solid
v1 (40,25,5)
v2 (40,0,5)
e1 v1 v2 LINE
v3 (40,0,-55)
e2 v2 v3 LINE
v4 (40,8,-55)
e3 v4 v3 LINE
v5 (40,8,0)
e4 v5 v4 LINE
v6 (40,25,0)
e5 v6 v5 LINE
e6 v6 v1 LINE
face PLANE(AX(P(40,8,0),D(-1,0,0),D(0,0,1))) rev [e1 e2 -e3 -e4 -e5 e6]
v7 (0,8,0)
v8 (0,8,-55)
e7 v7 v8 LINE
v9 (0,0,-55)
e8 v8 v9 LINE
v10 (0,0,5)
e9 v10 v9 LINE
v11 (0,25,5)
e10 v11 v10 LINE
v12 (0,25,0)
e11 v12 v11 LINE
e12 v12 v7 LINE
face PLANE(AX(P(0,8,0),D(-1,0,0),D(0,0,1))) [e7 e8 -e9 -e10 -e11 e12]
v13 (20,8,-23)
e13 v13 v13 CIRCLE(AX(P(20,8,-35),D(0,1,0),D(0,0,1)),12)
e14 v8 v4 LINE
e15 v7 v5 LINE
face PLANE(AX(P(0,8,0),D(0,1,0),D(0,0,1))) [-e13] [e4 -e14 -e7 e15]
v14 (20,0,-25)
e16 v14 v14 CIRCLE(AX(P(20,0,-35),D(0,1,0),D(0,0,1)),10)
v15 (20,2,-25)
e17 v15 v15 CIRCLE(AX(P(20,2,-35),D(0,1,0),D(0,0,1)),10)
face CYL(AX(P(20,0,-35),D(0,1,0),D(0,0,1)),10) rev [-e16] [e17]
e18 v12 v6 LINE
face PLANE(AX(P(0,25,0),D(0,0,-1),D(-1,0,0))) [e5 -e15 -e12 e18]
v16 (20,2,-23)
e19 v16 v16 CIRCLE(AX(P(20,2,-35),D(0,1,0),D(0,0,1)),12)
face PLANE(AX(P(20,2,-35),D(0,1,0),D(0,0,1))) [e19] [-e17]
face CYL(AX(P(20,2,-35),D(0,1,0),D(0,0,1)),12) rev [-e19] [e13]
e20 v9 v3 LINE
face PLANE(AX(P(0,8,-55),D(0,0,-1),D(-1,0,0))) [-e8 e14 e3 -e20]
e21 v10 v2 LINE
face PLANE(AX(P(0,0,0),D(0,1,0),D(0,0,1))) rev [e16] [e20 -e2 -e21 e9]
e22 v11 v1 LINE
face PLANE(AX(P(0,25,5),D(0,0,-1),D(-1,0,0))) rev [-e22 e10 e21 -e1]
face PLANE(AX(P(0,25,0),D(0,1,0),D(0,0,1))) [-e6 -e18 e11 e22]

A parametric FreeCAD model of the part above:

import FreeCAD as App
import Part
import Sketcher
from FreeCAD import Vector
Q = App.Units.Quantity


def add_polygon(sketch, points):
    """Adds a closed chain of lines whose ends are joined by coincident constraints."""
    first, n = sketch.GeometryCount, len(points)
    for a, b in zip(points, points[1:] + points[:1]):
        sketch.addGeometry(Part.LineSegment(App.Vector(*a, 0), App.Vector(*b, 0)), False)
    for i in range(n):
        sketch.addConstraint(Sketcher.Constraint("Coincident", first + i, 2, first + (i + 1) % n, 1))

doc = App.newDocument("Part")
body = doc.addObject("PartDesign::Body", "Body")

# Sketch on XZ plane
sketch1 = doc.addObject("Sketcher::SketchObject", "Sketch")
body.addObject(sketch1)
sketch1.AttachmentSupport = (doc.XZ_Plane, [""])
sketch1.MapMode = "FlatFace"
add_polygon(sketch1, [(0, -55), (0, 0), (40, 0), (40, -55)])  # lines 0-3
sketch1.addConstraint([
    Sketcher.Constraint("Vertical", 0),
    Sketcher.Constraint("Horizontal", 1),
    Sketcher.Constraint("Vertical", 2),
    Sketcher.Constraint("Horizontal", 3),
    Sketcher.Constraint("Coincident", 0, 2, -1, 1),
    Sketcher.Constraint("DistanceX", 1, 1, 1, 2, Q("40 mm")),
    Sketcher.Constraint("DistanceY", 0, 1, 0, 2, Q("55 mm")),
])
pad1 = doc.addObject("PartDesign::Pad", "Pad")
body.addObject(pad1)
pad1.Profile = sketch1
pad1.Length = 8
pad1.Reversed = True

# Sketch on XZ plane
sketch2 = doc.addObject("Sketcher::SketchObject", "Sketch001")
body.addObject(sketch2)
sketch2.AttachmentSupport = (doc.XZ_Plane, [""])
sketch2.MapMode = "FlatFace"
add_polygon(sketch2, [(0, 0), (0, 5), (40, 5), (40, 0)])  # lines 0-3
sketch2.addConstraint([
    Sketcher.Constraint("Vertical", 0),
    Sketcher.Constraint("Horizontal", 1),
    Sketcher.Constraint("Vertical", 2),
    Sketcher.Constraint("Horizontal", 3),
    Sketcher.Constraint("Coincident", 3, 2, -1, 1),
    Sketcher.Constraint("DistanceX", 1, 1, 1, 2, Q("40 mm")),
    Sketcher.Constraint("DistanceY", 0, 1, 0, 2, Q("5 mm")),
])
pad2 = doc.addObject("PartDesign::Pad", "Pad001")
body.addObject(pad2)
pad2.Profile = sketch2
pad2.Length = 25
pad2.Reversed = True

# Sketch on XZ plane
sketch3 = doc.addObject("Sketcher::SketchObject", "Sketch002")
body.addObject(sketch3)
sketch3.AttachmentSupport = (doc.XZ_Plane, [""])
sketch3.MapMode = "FlatFace"
sketch3.AttachmentOffset = App.Placement(Vector(0, 0, -8), App.Rotation())
sketch3.addGeometry(Part.Circle(Vector(20, -35, 0), Vector(0, 0, 1), 12), False)
sketch3.addConstraint([
    Sketcher.Constraint("Diameter", 0, Q("24 mm")),
    Sketcher.Constraint("DistanceX", -1, 1, 0, 3, Q("20 mm")),
    Sketcher.Constraint("DistanceY", 0, 3, -1, 1, Q("35 mm")),
])
pocket1 = doc.addObject("PartDesign::Pocket", "Pocket")
body.addObject(pocket1)
pocket1.Profile = sketch3
pocket1.Length = 6
pocket1.Reversed = True

# Sketch on XZ plane
sketch4 = doc.addObject("Sketcher::SketchObject", "Sketch003")
body.addObject(sketch4)
sketch4.AttachmentSupport = (doc.XZ_Plane, [""])
sketch4.MapMode = "FlatFace"
sketch4.AttachmentOffset = App.Placement(Vector(0, 0, -2), App.Rotation())
sketch4.addGeometry(Part.Circle(Vector(20, -35, 0), Vector(0, 0, 1), 10), False)
sketch4.addConstraint([
    Sketcher.Constraint("Diameter", 0, Q("20 mm")),
    Sketcher.Constraint("DistanceX", -1, 1, 0, 3, Q("20 mm")),
    Sketcher.Constraint("DistanceY", 0, 3, -1, 1, Q("35 mm")),
])
pocket2 = doc.addObject("PartDesign::Pocket", "Pocket001")
body.addObject(pocket2)
pocket2.Profile = sketch4
pocket2.Length = 2
pocket2.Reversed = True

doc.recompute()
